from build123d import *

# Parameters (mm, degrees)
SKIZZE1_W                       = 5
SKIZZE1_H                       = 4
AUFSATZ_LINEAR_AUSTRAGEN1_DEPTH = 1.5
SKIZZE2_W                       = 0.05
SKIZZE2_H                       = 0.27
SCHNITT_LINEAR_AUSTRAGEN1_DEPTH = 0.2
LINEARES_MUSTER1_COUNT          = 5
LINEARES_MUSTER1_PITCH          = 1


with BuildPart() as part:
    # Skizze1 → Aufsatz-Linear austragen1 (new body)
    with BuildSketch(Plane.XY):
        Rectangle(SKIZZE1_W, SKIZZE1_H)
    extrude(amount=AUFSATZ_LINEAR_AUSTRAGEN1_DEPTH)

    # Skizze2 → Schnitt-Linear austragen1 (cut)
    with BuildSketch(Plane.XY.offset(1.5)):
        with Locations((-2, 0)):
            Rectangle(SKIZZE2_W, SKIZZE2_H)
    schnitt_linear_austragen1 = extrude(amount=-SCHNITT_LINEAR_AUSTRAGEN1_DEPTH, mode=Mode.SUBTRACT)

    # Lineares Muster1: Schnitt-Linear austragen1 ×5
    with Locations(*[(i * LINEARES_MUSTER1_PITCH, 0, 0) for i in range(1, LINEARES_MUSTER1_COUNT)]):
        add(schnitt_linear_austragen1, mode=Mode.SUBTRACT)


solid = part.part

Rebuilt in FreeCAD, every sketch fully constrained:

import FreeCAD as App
import Part
import Sketcher
Q = App.Units.Quantity


def add_polygon(sketch, points):
    """Adds a closed chain of lines whose ends are joined by coincident constraints."""
    first, n = sketch.GeometryCount, len(points)
    for a, b in zip(points, points[1:] + points[:1]):
        sketch.addGeometry(Part.LineSegment(App.Vector(*a, 0), App.Vector(*b, 0)), False)
    for i in range(n):
        sketch.addConstraint(Sketcher.Constraint("Coincident", first + i, 2, first + (i + 1) % n, 1))

doc = App.newDocument("Part")
params = doc.addObject("Spreadsheet::Sheet", "Params")
for row, (alias, value) in enumerate([
    ("sketch1_width", "5 mm"),
    ("sketch1_height", "4 mm"),
    ("pad1_length", "1.5 mm"),
    ("sketch2_width", "0.05 mm"),
    ("sketch2_height", "0.27 mm"),
    ("pocket1_length", "0.2 mm"),
    ("linearpattern_pitch", "1 mm"),
], start=1):
    params.set(f"A{row}", alias)
    params.set(f"B{row}", "=" + value)
    params.setAlias(f"B{row}", alias)

body = doc.addObject("PartDesign::Body", "Body")

# Sketch on XY plane
sketch1 = body.newObject("Sketcher::SketchObject", "Sketch")
sketch1.AttachmentSupport = (doc.getObject("XY_Plane"), [""])
sketch1.MapMode = "FlatFace"
add_polygon(sketch1, [(-2.5, 2), (-2.5, -2), (2.5, -2), (2.5, 2)])  # lines 0-3
sketch1.addConstraint([
    Sketcher.Constraint("Vertical", 0),
    Sketcher.Constraint("Horizontal", 1),
    Sketcher.Constraint("Vertical", 2),
    Sketcher.Constraint("Horizontal", 3),
    Sketcher.Constraint("Symmetric", 0, 2, 2, 2, -1, 1),
    Sketcher.Constraint("DistanceX", 1, 1, 1, 2, Q("5 mm")),
    Sketcher.Constraint("DistanceY", 0, 2, 0, 1, Q("4 mm")),
])
sketch1.setExpression("Constraints[9]", "Params.sketch1_width")
sketch1.setExpression("Constraints[10]", "Params.sketch1_height")
pad1 = body.newObject("PartDesign::Pad", "Pad")
pad1.Profile = sketch1
pad1.setExpression("Length", "Params.pad1_length")

# Sketch on XY plane
sketch2 = body.newObject("Sketcher::SketchObject", "Sketch001")
sketch2.AttachmentSupport = (doc.getObject("XY_Plane"), [""])
sketch2.MapMode = "FlatFace"
sketch2.AttachmentOffset = App.Placement(App.Vector(0, 0, 1.5), App.Rotation())
add_polygon(sketch2, [(-2.025, 0.135), (-2.025, -0.135), (-1.975, -0.135), (-1.975, 0.135)])  # lines 0-3
sketch2.addConstraint([
    Sketcher.Constraint("Vertical", 0),
    Sketcher.Constraint("Horizontal", 1),
    Sketcher.Constraint("Vertical", 2),
    Sketcher.Constraint("Horizontal", 3),
    Sketcher.Constraint("DistanceX", 1, 1, 1, 2, Q("0.05 mm")),
    Sketcher.Constraint("DistanceY", 0, 2, 0, 1, Q("0.27 mm")),
    Sketcher.Constraint("DistanceX", 0, 2, -1, 1, Q("2.025 mm")),
    Sketcher.Constraint("DistanceY", 0, 2, -1, 1, Q("0.135 mm")),
])
sketch2.setExpression("Constraints[8]", "Params.sketch2_width")
sketch2.setExpression("Constraints[9]", "Params.sketch2_height")
pocket1 = body.newObject("PartDesign::Pocket", "Pocket")
pocket1.Profile = sketch2
pocket1.setExpression("Length", "Params.pocket1_length")
doc.recompute()

linearpattern = body.newObject("PartDesign::LinearPattern", "LinearPattern")
linearpattern.Originals = [pocket1]
linearpattern.Direction = (doc.getObject("X_Axis"), [""])
linearpattern.Mode = "offset"
linearpattern.setExpression("Offset", "Params.linearpattern_pitch")
linearpattern.Occurrences = 5
body.Tip = linearpattern

doc.recompute()
